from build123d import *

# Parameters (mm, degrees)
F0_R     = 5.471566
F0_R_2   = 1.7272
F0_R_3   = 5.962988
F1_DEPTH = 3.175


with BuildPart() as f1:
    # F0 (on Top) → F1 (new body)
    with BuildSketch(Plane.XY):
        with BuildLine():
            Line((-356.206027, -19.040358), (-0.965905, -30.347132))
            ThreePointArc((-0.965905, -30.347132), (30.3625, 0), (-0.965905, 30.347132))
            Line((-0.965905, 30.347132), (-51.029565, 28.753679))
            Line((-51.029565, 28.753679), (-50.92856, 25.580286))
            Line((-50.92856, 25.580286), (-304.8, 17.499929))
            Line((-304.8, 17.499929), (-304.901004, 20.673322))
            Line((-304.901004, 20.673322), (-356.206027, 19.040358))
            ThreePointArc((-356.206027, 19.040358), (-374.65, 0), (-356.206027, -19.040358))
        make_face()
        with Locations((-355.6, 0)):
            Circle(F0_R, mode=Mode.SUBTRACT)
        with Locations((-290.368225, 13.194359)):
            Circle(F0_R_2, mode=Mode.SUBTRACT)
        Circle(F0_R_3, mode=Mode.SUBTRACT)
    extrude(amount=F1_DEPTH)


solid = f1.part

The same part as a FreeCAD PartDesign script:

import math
import FreeCAD as App
import Part
import Sketcher
Q = App.Units.Quantity

doc = App.newDocument("Part")
body = doc.addObject("PartDesign::Body", "Body")

# Sketch on XY plane
sketch1 = doc.addObject("Sketcher::SketchObject", "Sketch")
body.addObject(sketch1)
sketch1.AttachmentSupport = (doc.XY_Plane, [""])
sketch1.MapMode = "FlatFace"
sketch1.addGeometry([
    Part.LineSegment(App.Vector(-356.206027, -19.040358, 0), App.Vector(-0.965905, -30.347132, 0)),  # 0
    Part.ArcOfCircle(Part.Circle(App.Vector(0, 0, 0), App.Vector(0, 0, 1), 30.3625), math.radians(-91.823026), math.radians(91.823026)),  # 1
    Part.LineSegment(App.Vector(-0.965905, 30.347132, 0), App.Vector(-51.029565, 28.753679, 0)),  # 2
    Part.LineSegment(App.Vector(-51.029565, 28.753679, 0), App.Vector(-50.92856, 25.580286, 0)),  # 3
    Part.LineSegment(App.Vector(-50.92856, 25.580286, 0), App.Vector(-304.8, 17.499929, 0)),  # 4
    Part.LineSegment(App.Vector(-304.8, 17.499929, 0), App.Vector(-304.901004, 20.673322, 0)),  # 5
    Part.LineSegment(App.Vector(-304.901004, 20.673322, 0), App.Vector(-356.206027, 19.040358, 0)),  # 6
    Part.ArcOfCircle(Part.Circle(App.Vector(-355.6, 0, 0), App.Vector(0, 0, 1), 19.05), math.radians(91.823026), math.radians(268.176974)),  # 7
    Part.Circle(App.Vector(-355.6, 0, 0), App.Vector(0, 0, 1), 5.471566),  # 8
    Part.Circle(App.Vector(0, 0, 0), App.Vector(0, 0, 1), 5.962988),  # 9
    Part.Circle(App.Vector(-290.368225, 13.194359, 0), App.Vector(0, 0, 1), 1.7272),  # 10
], False)
sketch1.addConstraint([
    Sketcher.Constraint("Tangent", 0, 2, 1, 1),
    Sketcher.Constraint("Tangent", 1, 2, 2, 1),
    Sketcher.Constraint("Coincident", 2, 2, 3, 1),
    Sketcher.Constraint("Coincident", 3, 2, 4, 1),
    Sketcher.Constraint("Coincident", 4, 2, 5, 1),
    Sketcher.Constraint("Coincident", 5, 2, 6, 1),
    Sketcher.Constraint("Tangent", 6, 2, 7, 1),
    Sketcher.Constraint("Tangent", 7, 2, 0, 1),
    Sketcher.Constraint("Coincident", 1, 3, -1, 1),
    Sketcher.Constraint("Coincident", 9, 3, -1, 1),
    Sketcher.Constraint("Coincident", 8, 3, 7, 3),
    Sketcher.Constraint("Symmetric", 6, 2, 7, 2, -1),
    Sketcher.Constraint("Perpendicular", 2, 3),
    Sketcher.Constraint("Perpendicular", 3, 4),
    Sketcher.Constraint("Perpendicular", 4, 5),
    Sketcher.Constraint("Perpendicular", 5, 6),
    Sketcher.Constraint("Radius", 7, Q("0.75 in")),
    Sketcher.Constraint("Distance", 4, Q("10 in")),
    Sketcher.Constraint("Diameter", 10, Q("0.136 in")),
    Sketcher.Constraint("DistanceX", 7, 3, -1, 1, Q("14 in")),
    Sketcher.Constraint("DistanceX", 4, 2, -1, 1, Q("12 in")),
    Sketcher.Constraint("Radius", 1, Q("30.3625 mm")),
    Sketcher.Constraint("Distance", 3, Q("0.125 in")),
    Sketcher.Constraint("Diameter", 8, Q("10.943132 mm")),
    Sketcher.Constraint("Diameter", 9, Q("11.925976 mm")),
    Sketcher.Constraint("DistanceY", 10, 3, 6, 2, Q("5.845999 mm")),
    Sketcher.Constraint("DistanceX", 10, 3, 0, 2, Q("289.40232 mm")),
])
pad1 = doc.addObject("PartDesign::Pad", "Pad")
body.addObject(pad1)
pad1.Profile = sketch1
pad1.Length = Q("0.125 in")

doc.recompute()
